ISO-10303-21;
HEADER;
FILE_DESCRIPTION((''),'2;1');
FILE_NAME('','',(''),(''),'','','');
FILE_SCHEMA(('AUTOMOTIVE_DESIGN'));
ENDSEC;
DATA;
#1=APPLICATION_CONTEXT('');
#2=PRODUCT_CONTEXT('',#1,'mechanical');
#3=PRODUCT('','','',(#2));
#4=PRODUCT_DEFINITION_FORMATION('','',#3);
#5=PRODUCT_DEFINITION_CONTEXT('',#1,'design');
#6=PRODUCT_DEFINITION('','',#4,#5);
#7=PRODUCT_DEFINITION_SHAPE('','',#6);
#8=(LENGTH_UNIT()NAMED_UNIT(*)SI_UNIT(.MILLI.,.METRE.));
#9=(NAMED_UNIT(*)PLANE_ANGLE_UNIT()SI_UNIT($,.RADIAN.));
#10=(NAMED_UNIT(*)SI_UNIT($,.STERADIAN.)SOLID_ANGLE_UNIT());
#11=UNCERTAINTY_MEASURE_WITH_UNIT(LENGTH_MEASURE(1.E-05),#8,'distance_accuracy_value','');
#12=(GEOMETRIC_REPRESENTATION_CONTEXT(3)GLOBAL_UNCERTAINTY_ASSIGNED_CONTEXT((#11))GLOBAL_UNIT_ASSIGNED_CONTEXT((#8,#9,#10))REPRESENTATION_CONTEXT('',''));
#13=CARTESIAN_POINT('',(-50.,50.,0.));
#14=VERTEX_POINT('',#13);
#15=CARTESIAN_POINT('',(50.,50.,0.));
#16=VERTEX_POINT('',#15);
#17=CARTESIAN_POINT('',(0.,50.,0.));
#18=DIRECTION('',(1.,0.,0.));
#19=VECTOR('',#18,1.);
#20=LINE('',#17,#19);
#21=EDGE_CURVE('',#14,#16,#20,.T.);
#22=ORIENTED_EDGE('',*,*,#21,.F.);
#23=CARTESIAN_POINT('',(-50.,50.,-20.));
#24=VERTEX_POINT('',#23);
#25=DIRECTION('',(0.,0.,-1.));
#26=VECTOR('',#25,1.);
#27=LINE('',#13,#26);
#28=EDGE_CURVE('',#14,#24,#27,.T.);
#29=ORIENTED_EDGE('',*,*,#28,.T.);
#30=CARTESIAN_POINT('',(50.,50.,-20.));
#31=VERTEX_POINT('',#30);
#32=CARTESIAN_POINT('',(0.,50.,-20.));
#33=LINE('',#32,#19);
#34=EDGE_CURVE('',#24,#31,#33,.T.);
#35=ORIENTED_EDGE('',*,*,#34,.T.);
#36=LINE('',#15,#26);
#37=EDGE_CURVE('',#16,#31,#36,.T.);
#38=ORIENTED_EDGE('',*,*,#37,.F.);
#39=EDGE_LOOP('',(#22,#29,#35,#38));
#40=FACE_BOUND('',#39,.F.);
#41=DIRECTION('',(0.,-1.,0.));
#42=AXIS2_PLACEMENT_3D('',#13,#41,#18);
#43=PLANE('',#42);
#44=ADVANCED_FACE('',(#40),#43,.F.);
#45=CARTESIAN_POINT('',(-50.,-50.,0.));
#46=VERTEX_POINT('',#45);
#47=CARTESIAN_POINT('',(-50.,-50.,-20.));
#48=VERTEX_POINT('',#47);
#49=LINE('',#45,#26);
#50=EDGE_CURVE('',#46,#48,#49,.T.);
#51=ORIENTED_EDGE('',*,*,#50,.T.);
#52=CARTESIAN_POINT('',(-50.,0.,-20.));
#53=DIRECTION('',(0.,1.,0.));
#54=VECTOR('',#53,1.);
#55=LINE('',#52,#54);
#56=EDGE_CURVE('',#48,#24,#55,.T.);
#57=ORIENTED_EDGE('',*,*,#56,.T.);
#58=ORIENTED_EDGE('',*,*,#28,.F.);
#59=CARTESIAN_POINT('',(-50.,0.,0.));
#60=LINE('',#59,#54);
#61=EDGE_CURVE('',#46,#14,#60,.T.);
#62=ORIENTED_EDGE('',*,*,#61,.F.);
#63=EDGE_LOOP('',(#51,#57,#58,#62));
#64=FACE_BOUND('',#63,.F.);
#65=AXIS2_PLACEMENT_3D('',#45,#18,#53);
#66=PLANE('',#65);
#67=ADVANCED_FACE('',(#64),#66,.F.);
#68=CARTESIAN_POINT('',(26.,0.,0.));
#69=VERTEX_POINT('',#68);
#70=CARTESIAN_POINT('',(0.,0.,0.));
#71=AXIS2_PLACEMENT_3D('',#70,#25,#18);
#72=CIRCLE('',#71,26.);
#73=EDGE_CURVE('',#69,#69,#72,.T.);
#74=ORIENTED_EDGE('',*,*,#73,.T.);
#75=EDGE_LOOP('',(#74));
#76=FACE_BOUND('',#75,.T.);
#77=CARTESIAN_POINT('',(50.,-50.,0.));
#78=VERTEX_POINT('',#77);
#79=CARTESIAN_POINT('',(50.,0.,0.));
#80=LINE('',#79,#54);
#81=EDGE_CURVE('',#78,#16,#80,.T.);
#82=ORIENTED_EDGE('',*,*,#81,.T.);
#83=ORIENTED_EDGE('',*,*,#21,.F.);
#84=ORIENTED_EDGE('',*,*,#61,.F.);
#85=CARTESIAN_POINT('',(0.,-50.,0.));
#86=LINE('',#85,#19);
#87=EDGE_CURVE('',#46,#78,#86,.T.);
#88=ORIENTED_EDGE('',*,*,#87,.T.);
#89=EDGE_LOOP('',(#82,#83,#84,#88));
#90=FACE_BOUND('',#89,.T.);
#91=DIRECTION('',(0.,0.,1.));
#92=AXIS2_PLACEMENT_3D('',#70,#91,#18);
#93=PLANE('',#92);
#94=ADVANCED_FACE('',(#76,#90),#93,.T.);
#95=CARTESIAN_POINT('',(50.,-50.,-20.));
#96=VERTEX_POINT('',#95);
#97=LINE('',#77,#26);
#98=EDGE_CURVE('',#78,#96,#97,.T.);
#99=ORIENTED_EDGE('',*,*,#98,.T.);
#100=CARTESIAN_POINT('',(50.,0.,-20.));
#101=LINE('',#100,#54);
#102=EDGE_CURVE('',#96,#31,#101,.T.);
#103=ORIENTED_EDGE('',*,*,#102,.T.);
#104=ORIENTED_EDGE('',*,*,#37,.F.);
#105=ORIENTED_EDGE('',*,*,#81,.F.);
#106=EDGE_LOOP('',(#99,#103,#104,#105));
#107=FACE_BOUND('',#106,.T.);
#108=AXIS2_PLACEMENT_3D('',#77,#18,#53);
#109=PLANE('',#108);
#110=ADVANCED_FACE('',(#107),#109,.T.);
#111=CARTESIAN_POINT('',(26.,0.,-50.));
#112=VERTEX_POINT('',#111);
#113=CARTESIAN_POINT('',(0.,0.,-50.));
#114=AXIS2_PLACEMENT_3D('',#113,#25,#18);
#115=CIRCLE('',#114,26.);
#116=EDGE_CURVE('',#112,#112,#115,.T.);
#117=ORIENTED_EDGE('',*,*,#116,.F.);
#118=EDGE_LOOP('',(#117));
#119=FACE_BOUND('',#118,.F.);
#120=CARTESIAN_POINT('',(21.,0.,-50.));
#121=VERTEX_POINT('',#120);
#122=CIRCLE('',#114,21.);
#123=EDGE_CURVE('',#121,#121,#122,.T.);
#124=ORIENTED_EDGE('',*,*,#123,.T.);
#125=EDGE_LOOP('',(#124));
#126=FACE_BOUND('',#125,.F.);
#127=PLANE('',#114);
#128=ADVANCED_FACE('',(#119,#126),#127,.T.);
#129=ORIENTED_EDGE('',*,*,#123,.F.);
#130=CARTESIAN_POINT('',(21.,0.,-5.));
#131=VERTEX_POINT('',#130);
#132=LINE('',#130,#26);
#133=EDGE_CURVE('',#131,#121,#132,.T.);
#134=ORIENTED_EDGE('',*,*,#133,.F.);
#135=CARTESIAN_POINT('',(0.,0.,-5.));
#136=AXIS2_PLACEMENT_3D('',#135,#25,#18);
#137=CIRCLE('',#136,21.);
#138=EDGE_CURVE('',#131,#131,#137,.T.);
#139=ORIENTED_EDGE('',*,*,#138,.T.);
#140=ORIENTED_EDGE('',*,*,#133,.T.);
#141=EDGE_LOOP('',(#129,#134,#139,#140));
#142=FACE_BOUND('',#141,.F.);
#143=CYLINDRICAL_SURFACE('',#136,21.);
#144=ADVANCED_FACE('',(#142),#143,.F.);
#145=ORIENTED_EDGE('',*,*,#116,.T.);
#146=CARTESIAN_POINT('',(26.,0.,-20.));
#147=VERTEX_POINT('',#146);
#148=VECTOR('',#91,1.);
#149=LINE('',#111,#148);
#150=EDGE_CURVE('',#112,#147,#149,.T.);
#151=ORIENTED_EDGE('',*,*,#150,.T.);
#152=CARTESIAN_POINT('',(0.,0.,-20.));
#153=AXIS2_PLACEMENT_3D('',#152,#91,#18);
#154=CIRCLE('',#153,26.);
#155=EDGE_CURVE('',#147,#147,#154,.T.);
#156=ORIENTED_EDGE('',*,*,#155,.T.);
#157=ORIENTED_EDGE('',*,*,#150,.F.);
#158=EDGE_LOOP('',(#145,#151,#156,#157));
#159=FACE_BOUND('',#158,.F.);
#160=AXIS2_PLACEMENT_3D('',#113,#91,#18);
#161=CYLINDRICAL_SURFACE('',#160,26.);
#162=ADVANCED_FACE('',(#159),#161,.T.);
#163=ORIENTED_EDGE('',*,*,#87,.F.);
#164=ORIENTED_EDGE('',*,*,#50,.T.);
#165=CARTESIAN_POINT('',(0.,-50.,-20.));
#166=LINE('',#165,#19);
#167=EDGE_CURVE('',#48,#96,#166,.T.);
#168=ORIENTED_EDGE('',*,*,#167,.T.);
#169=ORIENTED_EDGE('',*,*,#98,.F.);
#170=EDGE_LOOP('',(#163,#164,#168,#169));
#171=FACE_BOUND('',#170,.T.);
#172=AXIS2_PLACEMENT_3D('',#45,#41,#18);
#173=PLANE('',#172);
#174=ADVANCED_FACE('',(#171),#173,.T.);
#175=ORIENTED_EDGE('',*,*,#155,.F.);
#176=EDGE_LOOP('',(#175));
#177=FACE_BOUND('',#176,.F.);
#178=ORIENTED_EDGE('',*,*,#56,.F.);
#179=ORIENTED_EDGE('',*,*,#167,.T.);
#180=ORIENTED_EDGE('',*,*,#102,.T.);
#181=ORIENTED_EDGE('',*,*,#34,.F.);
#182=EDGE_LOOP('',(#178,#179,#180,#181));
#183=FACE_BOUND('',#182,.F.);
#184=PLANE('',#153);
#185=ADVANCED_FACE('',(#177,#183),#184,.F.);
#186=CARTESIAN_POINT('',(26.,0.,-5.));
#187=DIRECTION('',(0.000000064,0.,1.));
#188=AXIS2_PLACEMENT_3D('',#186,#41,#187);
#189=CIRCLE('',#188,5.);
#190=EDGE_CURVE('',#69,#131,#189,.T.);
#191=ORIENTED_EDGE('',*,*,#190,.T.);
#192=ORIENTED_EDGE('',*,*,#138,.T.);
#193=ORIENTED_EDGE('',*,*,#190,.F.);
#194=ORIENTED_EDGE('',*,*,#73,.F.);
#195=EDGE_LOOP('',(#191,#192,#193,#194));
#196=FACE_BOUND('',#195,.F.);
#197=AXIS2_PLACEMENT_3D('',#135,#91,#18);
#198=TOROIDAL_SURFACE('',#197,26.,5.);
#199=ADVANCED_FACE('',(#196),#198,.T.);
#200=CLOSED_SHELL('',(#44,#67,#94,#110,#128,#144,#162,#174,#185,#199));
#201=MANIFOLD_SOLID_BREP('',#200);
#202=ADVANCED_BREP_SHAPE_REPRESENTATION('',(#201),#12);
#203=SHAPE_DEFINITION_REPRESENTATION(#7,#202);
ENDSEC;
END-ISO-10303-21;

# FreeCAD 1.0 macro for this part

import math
import FreeCAD as App
import Part
import Sketcher
from FreeCAD import Vector


def add_polygon(sketch, points):
    """Adds a closed chain of lines whose ends are joined by coincident constraints."""
    first, n = sketch.GeometryCount, len(points)
    for a, b in zip(points, points[1:] + points[:1]):
        sketch.addGeometry(Part.LineSegment(App.Vector(*a, 0), App.Vector(*b, 0)), False)
    for i in range(n):
        sketch.addConstraint(Sketcher.Constraint("Coincident", first + i, 2, first + (i + 1) % n, 1))

doc = App.newDocument("Part")
body = doc.addObject("PartDesign::Body", "Body")

# Sketch on XZ plane
sketch1 = doc.addObject("Sketcher::SketchObject", "Sketch")
body.addObject(sketch1)
sketch1.AttachmentSupport = (doc.XZ_Plane, [""])
sketch1.MapMode = "FlatFace"
sketch1.addGeometry([
    Part.LineSegment(Vector(41, -5, 0), Vector(41, 0, 0)),  # 0
    Part.LineSegment(Vector(41, 0, 0), Vector(26, 0, 0)),  # 1
    Part.ArcOfCircle(Part.Circle(Vector(26, -5, 0), Vector(0, 0, 1), 5), math.radians(90), math.radians(180)),  # 2
    Part.LineSegment(Vector(21, -5, 0), Vector(21, -50, 0)),  # 3
    Part.LineSegment(Vector(21, -50, 0), Vector(26, -50, 0)),  # 4
    Part.LineSegment(Vector(26, -50, 0), Vector(26, -10, 0)),  # 5
    Part.ArcOfCircle(Part.Circle(Vector(31, -10, 0), Vector(0, 0, 1), 5), math.radians(90), math.radians(180)),  # 6
    Part.LineSegment(Vector(31, -5, 0), Vector(41, -5, 0)),  # 7
], False)
sketch1.addConstraint([
    Sketcher.Constraint("Coincident", 0, 2, 1, 1),
    Sketcher.Constraint("Tangent", 1, 2, 2, 1),
    Sketcher.Constraint("Tangent", 2, 2, 3, 1),
    Sketcher.Constraint("Coincident", 3, 2, 4, 1),
    Sketcher.Constraint("Coincident", 4, 2, 5, 1),
    Sketcher.Constraint("Tangent", 5, 2, 6, 2),
    Sketcher.Constraint("Tangent", 6, 1, 7, 1),
    Sketcher.Constraint("Coincident", 7, 2, 0, 1),
    Sketcher.Constraint("Vertical", 0),
    Sketcher.Constraint("Horizontal", 1),
    Sketcher.Constraint("Vertical", 3),
    Sketcher.Constraint("Horizontal", 4),
    Sketcher.Constraint("Vertical", 5),
    Sketcher.Constraint("Horizontal", 7),
    Sketcher.Constraint("Equal", 2, 6),
    Sketcher.Constraint("PointOnObject", 0, 2, -1),
    Sketcher.Constraint("Horizontal", 2, 2, 6, 1),
    Sketcher.Constraint("Vertical", 1, 2, 4, 2),
    Sketcher.Constraint("Radius", 2, 5.0),
    Sketcher.Constraint("DistanceX", 1, 2, 1, 1, 15.0),
    Sketcher.Constraint("DistanceY", 3, 2, 3, 1, 45.0),
    Sketcher.Constraint("DistanceX", -1, 1, 2, 3, 26.0),
])
revolution = doc.addObject("PartDesign::Revolution", "Revolution")
body.addObject(revolution)
revolution.Profile = sketch1
revolution.ReferenceAxis = (sketch1, ["V_Axis"])
revolution.Angle = 360

# Sketch on XY plane
sketch2 = doc.addObject("Sketcher::SketchObject", "Sketch001")
body.addObject(sketch2)
sketch2.AttachmentSupport = (doc.XY_Plane, [""])
sketch2.MapMode = "FlatFace"
add_polygon(sketch2, [(-50, 50), (-50, -50), (50, -50), (50, 50)])  # lines 0-3
sketch2.addGeometry(Part.Circle(Vector(0, 0, 0), Vector(0, 0, 1), 26), False)  # 4
sketch2.addConstraint([
    Sketcher.Constraint("Vertical", 0),
    Sketcher.Constraint("Horizontal", 1),
    Sketcher.Constraint("Vertical", 2),
    Sketcher.Constraint("Horizontal", 3),
    Sketcher.Constraint("Coincident", 4, 3, -1, 1),
    Sketcher.Constraint("Symmetric", 0, 2, 2, 2, -1, 1),
    Sketcher.Constraint("Equal", 3, 0),
    Sketcher.Constraint("Diameter", 4, 52.0),
    Sketcher.Constraint("DistanceX", 1, 1, 1, 2, 100.0),
])
pad1 = doc.addObject("PartDesign::Pad", "Pad")
body.addObject(pad1)
pad1.Profile = sketch2
pad1.Length = 20
pad1.Reversed = True

doc.recompute()
